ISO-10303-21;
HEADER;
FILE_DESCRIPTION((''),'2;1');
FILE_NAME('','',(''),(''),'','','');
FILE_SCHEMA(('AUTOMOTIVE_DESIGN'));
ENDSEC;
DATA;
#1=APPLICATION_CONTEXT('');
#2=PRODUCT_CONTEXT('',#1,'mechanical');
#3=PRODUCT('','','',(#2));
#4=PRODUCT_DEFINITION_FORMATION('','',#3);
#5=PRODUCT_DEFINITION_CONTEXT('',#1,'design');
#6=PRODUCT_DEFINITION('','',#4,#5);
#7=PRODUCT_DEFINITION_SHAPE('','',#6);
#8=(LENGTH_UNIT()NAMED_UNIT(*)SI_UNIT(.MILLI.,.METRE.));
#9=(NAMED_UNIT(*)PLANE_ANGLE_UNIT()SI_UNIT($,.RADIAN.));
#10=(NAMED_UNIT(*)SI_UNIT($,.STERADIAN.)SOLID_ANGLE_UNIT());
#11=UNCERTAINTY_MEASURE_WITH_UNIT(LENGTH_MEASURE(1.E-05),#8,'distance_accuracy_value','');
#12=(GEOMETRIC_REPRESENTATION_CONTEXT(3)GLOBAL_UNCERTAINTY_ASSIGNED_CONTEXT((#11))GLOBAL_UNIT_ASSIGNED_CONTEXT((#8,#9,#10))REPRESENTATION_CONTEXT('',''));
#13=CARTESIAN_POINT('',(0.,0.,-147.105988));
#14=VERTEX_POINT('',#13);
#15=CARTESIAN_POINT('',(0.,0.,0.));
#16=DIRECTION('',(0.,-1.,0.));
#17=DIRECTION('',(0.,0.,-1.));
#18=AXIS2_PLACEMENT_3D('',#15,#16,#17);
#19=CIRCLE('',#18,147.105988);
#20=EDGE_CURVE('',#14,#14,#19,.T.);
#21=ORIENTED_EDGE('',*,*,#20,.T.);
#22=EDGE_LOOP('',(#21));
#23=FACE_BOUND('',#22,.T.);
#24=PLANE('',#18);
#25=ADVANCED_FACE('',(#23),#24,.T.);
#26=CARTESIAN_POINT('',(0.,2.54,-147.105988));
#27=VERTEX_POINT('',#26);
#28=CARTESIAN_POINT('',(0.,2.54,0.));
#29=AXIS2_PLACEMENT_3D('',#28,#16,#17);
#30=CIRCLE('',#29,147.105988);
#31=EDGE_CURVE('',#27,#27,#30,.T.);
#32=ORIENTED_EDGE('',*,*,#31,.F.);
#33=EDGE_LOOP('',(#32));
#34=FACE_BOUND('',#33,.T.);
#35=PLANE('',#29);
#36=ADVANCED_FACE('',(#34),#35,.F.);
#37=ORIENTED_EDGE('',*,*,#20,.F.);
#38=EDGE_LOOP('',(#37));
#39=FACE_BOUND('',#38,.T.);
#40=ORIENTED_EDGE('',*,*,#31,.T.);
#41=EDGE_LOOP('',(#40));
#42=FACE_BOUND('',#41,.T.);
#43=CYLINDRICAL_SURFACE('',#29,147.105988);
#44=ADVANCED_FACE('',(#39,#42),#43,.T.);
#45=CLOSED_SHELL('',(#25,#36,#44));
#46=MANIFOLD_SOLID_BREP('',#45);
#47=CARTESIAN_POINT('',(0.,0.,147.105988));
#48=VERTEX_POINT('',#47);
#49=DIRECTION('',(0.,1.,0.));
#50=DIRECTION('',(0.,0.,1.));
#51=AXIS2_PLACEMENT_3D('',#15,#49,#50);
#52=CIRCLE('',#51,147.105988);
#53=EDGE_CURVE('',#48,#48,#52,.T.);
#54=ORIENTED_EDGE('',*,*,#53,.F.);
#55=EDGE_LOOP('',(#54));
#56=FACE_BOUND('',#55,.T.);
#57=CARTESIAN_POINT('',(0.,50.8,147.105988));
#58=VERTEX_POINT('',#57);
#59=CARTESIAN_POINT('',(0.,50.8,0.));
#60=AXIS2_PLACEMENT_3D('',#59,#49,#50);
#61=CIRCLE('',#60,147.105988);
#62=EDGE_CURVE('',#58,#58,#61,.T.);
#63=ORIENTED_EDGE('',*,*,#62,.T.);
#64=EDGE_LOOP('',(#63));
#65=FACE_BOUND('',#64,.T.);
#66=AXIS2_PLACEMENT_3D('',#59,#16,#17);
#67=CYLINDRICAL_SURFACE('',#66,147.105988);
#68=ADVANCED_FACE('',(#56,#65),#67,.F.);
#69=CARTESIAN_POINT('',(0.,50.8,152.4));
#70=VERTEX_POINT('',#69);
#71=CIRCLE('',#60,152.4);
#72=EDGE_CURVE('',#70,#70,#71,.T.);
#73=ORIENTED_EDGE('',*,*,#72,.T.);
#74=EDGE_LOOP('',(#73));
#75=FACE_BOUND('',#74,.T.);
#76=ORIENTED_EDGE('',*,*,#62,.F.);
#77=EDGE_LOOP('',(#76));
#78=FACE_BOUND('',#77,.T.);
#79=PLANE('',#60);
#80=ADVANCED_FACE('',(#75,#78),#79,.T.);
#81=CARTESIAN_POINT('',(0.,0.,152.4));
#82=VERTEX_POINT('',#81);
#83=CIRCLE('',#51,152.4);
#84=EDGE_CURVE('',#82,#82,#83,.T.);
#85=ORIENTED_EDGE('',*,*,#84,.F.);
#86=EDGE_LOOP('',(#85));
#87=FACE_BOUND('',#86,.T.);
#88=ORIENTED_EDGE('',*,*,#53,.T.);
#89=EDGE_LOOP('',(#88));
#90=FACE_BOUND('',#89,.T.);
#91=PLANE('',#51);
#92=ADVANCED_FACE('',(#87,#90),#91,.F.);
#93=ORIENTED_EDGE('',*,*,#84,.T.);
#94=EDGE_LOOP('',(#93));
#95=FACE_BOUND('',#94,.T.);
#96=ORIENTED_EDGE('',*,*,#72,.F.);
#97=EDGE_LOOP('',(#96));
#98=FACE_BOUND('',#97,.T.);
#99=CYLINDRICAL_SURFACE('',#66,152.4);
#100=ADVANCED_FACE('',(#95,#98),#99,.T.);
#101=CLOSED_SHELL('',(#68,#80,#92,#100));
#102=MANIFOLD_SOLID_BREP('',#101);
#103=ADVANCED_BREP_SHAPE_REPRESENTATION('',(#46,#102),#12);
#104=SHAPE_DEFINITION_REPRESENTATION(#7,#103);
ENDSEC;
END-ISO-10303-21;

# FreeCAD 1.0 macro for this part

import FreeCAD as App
import Part
import Sketcher

V = App.Vector
Q = App.Units.Quantity

doc = App.newDocument("Part")
body = doc.addObject("PartDesign::Body", "Body")

# Sketch on XZ plane
sketch1 = body.newObject("Sketcher::SketchObject", "Sketch")
sketch1.AttachmentSupport = (doc.getObject("XZ_Plane"), [""])
sketch1.MapMode = "FlatFace"
sketch1.addGeometry([
    Part.Circle(V(0, 0, 0), V(0, 0, 1), 152.4),
    Part.Circle(V(0, 0, 0), V(0, 0, 1), 147.105988),
], False)
sketch1.addConstraint([
    Sketcher.Constraint("Coincident", 0, 3, -1, 1),
    Sketcher.Constraint("Coincident", 1, 3, -1, 1),
    Sketcher.Constraint("Diameter", 0, Q("12 in")),
    Sketcher.Constraint("Diameter", 1, 294.211977),
])
pad1 = body.newObject("PartDesign::Pad", "Pad")
pad1.Profile = sketch1
pad1.Length = Q("2 in")
pad1.Reversed = True
body2 = doc.addObject("PartDesign::Body", "Body001")

# Sketch on XZ plane
sketch2 = body2.newObject("Sketcher::SketchObject", "Sketch001")
sketch2.AttachmentSupport = (doc.getObject("XZ_Plane001"), [""])
sketch2.MapMode = "FlatFace"
sketch2.addGeometry(Part.Circle(V(0, 0, 0), V(0, 0, 1), 147.105988), False)
sketch2.addConstraint([
    Sketcher.Constraint("Coincident", 0, 3, -1, 1),
    Sketcher.Constraint("Diameter", 0, 294.211977),
])
pad2 = body2.newObject("PartDesign::Pad", "Pad001")
pad2.Profile = sketch2
pad2.Length = Q("0.1 in")
pad2.Reversed = True

doc.recompute()
